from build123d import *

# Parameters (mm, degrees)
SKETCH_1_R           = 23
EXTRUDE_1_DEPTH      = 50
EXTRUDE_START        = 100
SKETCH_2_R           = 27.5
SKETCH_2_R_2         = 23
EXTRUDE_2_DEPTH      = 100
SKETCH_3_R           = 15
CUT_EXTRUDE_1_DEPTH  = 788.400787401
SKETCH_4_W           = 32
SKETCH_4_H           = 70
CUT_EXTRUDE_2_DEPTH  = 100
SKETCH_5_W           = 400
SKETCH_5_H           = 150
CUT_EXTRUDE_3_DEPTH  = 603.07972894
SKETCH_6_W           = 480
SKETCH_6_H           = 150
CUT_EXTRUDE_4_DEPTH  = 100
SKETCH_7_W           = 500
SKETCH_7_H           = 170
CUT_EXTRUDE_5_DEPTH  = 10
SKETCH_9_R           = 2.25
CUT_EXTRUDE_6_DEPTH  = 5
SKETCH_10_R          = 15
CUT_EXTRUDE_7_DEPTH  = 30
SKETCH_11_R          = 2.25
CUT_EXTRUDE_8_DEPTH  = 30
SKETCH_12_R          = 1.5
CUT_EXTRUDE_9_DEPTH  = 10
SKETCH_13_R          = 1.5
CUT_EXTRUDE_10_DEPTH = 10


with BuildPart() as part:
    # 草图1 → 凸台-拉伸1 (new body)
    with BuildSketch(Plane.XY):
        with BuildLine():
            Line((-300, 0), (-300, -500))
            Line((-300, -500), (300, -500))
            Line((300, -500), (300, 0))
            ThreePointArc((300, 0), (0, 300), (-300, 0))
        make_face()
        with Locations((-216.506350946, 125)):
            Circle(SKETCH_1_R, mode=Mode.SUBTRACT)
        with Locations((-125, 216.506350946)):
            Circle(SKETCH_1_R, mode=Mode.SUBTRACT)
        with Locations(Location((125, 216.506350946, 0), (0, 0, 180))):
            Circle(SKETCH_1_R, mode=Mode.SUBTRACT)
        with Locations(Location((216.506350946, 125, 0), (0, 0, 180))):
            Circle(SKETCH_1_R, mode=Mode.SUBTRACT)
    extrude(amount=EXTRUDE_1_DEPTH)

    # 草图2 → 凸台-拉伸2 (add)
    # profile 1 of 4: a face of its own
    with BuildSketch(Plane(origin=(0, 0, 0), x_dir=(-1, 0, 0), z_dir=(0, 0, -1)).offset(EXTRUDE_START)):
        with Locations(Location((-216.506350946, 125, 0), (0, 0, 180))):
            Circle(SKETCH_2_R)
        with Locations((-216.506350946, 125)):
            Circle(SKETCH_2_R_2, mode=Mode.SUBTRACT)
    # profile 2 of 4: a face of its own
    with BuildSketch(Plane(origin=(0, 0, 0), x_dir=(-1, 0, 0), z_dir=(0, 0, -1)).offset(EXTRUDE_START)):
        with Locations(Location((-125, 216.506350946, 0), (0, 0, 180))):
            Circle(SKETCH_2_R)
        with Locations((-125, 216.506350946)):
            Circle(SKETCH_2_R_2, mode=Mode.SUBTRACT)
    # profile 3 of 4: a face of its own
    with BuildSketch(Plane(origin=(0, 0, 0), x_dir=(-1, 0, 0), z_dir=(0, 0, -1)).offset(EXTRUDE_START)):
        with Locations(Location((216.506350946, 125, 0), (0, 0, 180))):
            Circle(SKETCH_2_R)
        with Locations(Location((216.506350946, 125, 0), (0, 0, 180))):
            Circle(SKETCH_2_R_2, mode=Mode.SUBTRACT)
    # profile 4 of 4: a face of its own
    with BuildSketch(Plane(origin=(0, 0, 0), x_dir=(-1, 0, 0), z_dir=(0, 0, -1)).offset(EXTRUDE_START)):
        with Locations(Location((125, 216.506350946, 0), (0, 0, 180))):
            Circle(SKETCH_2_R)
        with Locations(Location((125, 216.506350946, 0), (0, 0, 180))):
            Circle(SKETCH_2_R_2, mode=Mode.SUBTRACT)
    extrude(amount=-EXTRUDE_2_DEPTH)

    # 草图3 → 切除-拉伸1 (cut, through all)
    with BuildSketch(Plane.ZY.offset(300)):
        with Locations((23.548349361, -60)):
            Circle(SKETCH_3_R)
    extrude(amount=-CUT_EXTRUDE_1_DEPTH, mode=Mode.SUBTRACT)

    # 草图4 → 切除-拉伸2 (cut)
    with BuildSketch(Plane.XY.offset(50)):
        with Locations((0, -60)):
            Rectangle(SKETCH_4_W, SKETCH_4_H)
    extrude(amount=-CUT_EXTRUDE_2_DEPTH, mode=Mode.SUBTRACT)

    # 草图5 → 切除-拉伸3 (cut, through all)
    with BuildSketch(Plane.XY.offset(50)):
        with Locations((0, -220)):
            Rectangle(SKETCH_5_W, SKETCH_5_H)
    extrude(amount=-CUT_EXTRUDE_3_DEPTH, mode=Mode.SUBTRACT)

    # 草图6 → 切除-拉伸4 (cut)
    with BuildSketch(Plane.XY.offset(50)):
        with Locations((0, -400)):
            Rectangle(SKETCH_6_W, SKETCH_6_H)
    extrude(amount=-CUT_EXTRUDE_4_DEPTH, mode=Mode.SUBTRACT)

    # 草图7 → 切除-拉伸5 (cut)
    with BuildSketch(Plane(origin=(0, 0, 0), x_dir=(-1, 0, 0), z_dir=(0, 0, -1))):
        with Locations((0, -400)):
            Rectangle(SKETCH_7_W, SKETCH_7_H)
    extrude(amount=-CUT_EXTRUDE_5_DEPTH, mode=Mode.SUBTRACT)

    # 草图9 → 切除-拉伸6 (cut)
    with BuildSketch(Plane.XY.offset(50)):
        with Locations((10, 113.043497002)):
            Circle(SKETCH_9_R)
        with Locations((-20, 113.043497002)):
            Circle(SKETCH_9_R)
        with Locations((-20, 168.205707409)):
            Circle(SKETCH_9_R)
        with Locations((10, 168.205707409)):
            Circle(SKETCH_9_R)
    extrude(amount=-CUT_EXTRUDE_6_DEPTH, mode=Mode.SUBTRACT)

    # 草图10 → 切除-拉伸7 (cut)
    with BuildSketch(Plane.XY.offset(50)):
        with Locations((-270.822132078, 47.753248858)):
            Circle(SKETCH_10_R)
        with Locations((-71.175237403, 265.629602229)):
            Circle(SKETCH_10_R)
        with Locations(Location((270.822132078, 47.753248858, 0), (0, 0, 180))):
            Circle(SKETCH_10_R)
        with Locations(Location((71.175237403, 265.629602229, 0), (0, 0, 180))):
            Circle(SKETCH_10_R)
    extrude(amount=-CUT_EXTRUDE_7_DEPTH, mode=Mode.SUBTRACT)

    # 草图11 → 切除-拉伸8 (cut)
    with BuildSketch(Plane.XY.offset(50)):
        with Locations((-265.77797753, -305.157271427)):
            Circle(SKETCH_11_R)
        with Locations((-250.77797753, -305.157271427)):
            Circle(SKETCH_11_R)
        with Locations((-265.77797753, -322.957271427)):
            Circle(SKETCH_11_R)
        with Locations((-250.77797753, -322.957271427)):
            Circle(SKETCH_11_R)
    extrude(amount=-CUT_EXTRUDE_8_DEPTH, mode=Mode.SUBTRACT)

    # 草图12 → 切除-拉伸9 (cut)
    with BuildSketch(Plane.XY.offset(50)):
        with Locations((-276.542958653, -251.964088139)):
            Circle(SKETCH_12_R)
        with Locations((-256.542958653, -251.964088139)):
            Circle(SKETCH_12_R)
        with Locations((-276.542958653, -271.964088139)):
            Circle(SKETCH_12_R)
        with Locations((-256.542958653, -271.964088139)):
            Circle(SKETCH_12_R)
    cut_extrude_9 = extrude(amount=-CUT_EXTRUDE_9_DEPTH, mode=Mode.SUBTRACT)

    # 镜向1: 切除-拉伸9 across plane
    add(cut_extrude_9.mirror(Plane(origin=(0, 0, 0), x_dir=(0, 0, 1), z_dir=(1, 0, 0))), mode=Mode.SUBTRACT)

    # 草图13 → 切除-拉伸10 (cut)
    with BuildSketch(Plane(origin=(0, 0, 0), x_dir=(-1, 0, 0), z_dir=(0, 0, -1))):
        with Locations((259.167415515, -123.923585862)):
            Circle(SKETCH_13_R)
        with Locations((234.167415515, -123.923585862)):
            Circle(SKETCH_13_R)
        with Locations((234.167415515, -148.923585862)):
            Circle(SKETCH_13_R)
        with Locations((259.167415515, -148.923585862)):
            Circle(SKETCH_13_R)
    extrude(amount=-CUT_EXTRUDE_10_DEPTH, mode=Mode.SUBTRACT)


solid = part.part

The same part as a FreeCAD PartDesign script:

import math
import FreeCAD as App
import Part
import Sketcher
from FreeCAD import Vector
Q = App.Units.Quantity


def add_polygon(sketch, points):
    """Adds a closed chain of lines whose ends are joined by coincident constraints."""
    first, n = sketch.GeometryCount, len(points)
    for a, b in zip(points, points[1:] + points[:1]):
        sketch.addGeometry(Part.LineSegment(App.Vector(*a, 0), App.Vector(*b, 0)), False)
    for i in range(n):
        sketch.addConstraint(Sketcher.Constraint("Coincident", first + i, 2, first + (i + 1) % n, 1))

doc = App.newDocument("Part")
params = doc.addObject("Spreadsheet::Sheet", "Params")
for row, (alias, value) in enumerate([
    ("sketch1_diameter", "46 mm"),
    ("sketch1_radius", "300 mm"),
    ("sketch1_height", "500 mm"),
    ("pad1_length", "50 mm"),
    ("sketch2_diameter", "55 mm"),
    ("sketch2_diameter2", "46 mm"),
    ("pad2_length", "100 mm"),
    ("sketch3_diameter", "30 mm"),
    ("sketch4_width", "32 mm"),
    ("sketch4_height", "70 mm"),
    ("pocket2_length", "100 mm"),
    ("sketch5_width", "400 mm"),
    ("sketch5_height", "150 mm"),
    ("sketch6_width", "480 mm"),
    ("sketch6_height", "150 mm"),
    ("pocket4_length", "100 mm"),
    ("sketch7_width", "500 mm"),
    ("sketch7_height", "170 mm"),
    ("pocket5_length", "10 mm"),
    ("sketch8_diameter", "4.5 mm"),
    ("pocket6_length", "5 mm"),
    ("sketch9_diameter", "30 mm"),
    ("pocket7_length", "30 mm"),
    ("sketch10_diameter", "4.5 mm"),
    ("pocket8_length", "30 mm"),
    ("sketch11_diameter", "3 mm"),
    ("pocket9_length", "10 mm"),
    ("sketch12_diameter", "3 mm"),
    ("pocket10_length", "10 mm"),
], start=1):
    params.set(f"A{row}", alias)
    params.set(f"B{row}", "=" + value)
    params.setAlias(f"B{row}", alias)

body = doc.addObject("PartDesign::Body", "Body")

sketch1 = doc.addObject("Sketcher::SketchObject", "Sketch")
body.addObject(sketch1)
sketch1.AttachmentSupport = (doc.XY_Plane, [""])
sketch1.MapMode = "FlatFace"
sketch1.addGeometry([
    Part.LineSegment(Vector(-300, 0, 0), Vector(-300, -500, 0)),
    Part.LineSegment(Vector(-300, -500, 0), Vector(300, -500, 0)),
    Part.LineSegment(Vector(300, -500, 0), Vector(300, 0, 0)),
    Part.ArcOfCircle(Part.Circle(Vector(0, 0, 0), Vector(0, 0, 1), 300), math.radians(0), math.radians(180)),
    Part.Circle(Vector(-216.506351, 125, 0), Vector(0, 0, 1), 23),
    Part.Circle(Vector(216.506351, 125, 0), Vector(0, 0, 1), 23),
    Part.Circle(Vector(-125, 216.506351, 0), Vector(0, 0, 1), 23),
    Part.Circle(Vector(125, 216.506351, 0), Vector(0, 0, 1), 23),
], False)
sketch1.addConstraint([
    Sketcher.Constraint("Coincident", 0, 2, 1, 1),
    Sketcher.Constraint("Coincident", 1, 2, 2, 1),
    Sketcher.Constraint("Tangent", 2, 2, 3, 1),
    Sketcher.Constraint("Tangent", 3, 2, 0, 1),
    Sketcher.Constraint("Vertical", 0),
    Sketcher.Constraint("Horizontal", 1),
    Sketcher.Constraint("Vertical", 2),
    Sketcher.Constraint("Coincident", 3, 3, -1, 1),
    Sketcher.Constraint("Equal", 4, 5),
    Sketcher.Constraint("Equal", 5, 6),
    Sketcher.Constraint("Equal", 6, 7),
    Sketcher.Constraint("Symmetric", 4, 3, 5, 3, -2),
    Sketcher.Constraint("Symmetric", 6, 3, 7, 3, -2),
    Sketcher.Constraint("Diameter", 4, Q("46 mm")),
    Sketcher.Constraint("Radius", 3, Q("300 mm")),
    Sketcher.Constraint("DistanceY", 0, 2, 0, 1, Q("500 mm")),
    Sketcher.Constraint("DistanceY", -1, 1, 4, 3, Q("125 mm")),
    Sketcher.Constraint("DistanceX", 6, 3, -1, 1, Q("125 mm")),
    Sketcher.Constraint("DistanceX", 4, 3, 5, 3, Q("433.012702 mm")),
    Sketcher.Constraint("DistanceY", -1, 1, 6, 3, Q("216.506351 mm")),
])
sketch1.setExpression("Constraints[13]", "Params.sketch1_diameter")
sketch1.setExpression("Constraints[14]", "Params.sketch1_radius")
sketch1.setExpression("Constraints[15]", "Params.sketch1_height")
pad1 = doc.addObject("PartDesign::Pad", "Pad")
body.addObject(pad1)
pad1.Profile = sketch1
pad1.setExpression("Length", "Params.pad1_length")

sketch2 = doc.addObject("Sketcher::SketchObject", "Sketch001")
body.addObject(sketch2)
sketch2.AttachmentSupport = (doc.XY_Plane, [""])
sketch2.MapMode = "FlatFace"
sketch2.AttachmentOffset = App.Placement(Vector(0, 0, -100), App.Rotation())
sketch2.addGeometry([
    Part.Circle(Vector(216.506351, 125, 0), Vector(0, 0, 1), 27.5),
    Part.Circle(Vector(216.506351, 125, 0), Vector(0, 0, 1), 23),
    Part.Circle(Vector(125, 216.506351, 0), Vector(0, 0, 1), 27.5),
    Part.Circle(Vector(125, 216.506351, 0), Vector(0, 0, 1), 23),
    Part.Circle(Vector(-216.506351, 125, 0), Vector(0, 0, 1), 27.5),
    Part.Circle(Vector(-216.506351, 125, 0), Vector(0, 0, 1), 23),
    Part.Circle(Vector(-125, 216.506351, 0), Vector(0, 0, 1), 27.5),
    Part.Circle(Vector(-125, 216.506351, 0), Vector(0, 0, 1), 23),
], False)
sketch2.addConstraint([
    Sketcher.Constraint("Coincident", 1, 3, 0, 3),
    Sketcher.Constraint("Coincident", 3, 3, 2, 3),
    Sketcher.Constraint("Coincident", 5, 3, 4, 3),
    Sketcher.Constraint("Coincident", 7, 3, 6, 3),
    Sketcher.Constraint("Equal", 0, 2),
    Sketcher.Constraint("Equal", 1, 3),
    Sketcher.Constraint("Equal", 2, 4),
    Sketcher.Constraint("Equal", 3, 5),
    Sketcher.Constraint("Equal", 4, 6),
    Sketcher.Constraint("Equal", 5, 7),
    Sketcher.Constraint("Symmetric", 0, 3, 4, 3, -2),
    Sketcher.Constraint("Symmetric", 2, 3, 6, 3, -2),
    Sketcher.Constraint("Diameter", 0, Q("55 mm")),
    Sketcher.Constraint("Diameter", 1, Q("46 mm")),
    Sketcher.Constraint("DistanceY", -1, 1, 0, 3, Q("125 mm")),
    Sketcher.Constraint("DistanceX", -1, 1, 2, 3, Q("125 mm")),
    Sketcher.Constraint("DistanceX", 4, 3, 0, 3, Q("433.012702 mm")),
    Sketcher.Constraint("DistanceY", -1, 1, 2, 3, Q("216.506351 mm")),
])
sketch2.setExpression("Constraints[12]", "Params.sketch2_diameter")
sketch2.setExpression("Constraints[13]", "Params.sketch2_diameter2")
pad2 = doc.addObject("PartDesign::Pad", "Pad001")
body.addObject(pad2)
pad2.Profile = sketch2
pad2.setExpression("Length", "Params.pad2_length")

sketch3 = doc.addObject("Sketcher::SketchObject", "Sketch002")
body.addObject(sketch3)
sketch3.AttachmentSupport = (doc.YZ_Plane, [""])
sketch3.MapMode = "FlatFace"
sketch3.AttachmentOffset = App.Placement(Vector(0, 0, -300), App.Rotation())
sketch3.addGeometry(Part.Circle(Vector(-60, 23.548349, 0), Vector(0, 0, 1), 15), False)
sketch3.addConstraint([
    Sketcher.Constraint("Diameter", 0, Q("30 mm")),
    Sketcher.Constraint("DistanceX", 0, 3, -1, 1, Q("60 mm")),
    Sketcher.Constraint("DistanceY", -1, 1, 0, 3, Q("23.548349 mm")),
])
sketch3.setExpression("Constraints[0]", "Params.sketch3_diameter")
pocket1 = doc.addObject("PartDesign::Pocket", "Pocket")
body.addObject(pocket1)
pocket1.Profile = sketch3
pocket1.Type = "ThroughAll"
pocket1.Reversed = True

sketch4 = doc.addObject("Sketcher::SketchObject", "Sketch003")
body.addObject(sketch4)
sketch4.AttachmentSupport = (doc.XY_Plane, [""])
sketch4.MapMode = "FlatFace"
sketch4.AttachmentOffset = App.Placement(Vector(0, 0, 50), App.Rotation())
add_polygon(sketch4, [(-16, -25), (-16, -95), (16, -95), (16, -25)])
sketch4.addConstraint([
    Sketcher.Constraint("Vertical", 0),
    Sketcher.Constraint("Horizontal", 1),
    Sketcher.Constraint("Vertical", 2),
    Sketcher.Constraint("Horizontal", 3),
    Sketcher.Constraint("DistanceX", 1, 1, 1, 2, Q("32 mm")),
    Sketcher.Constraint("DistanceY", 0, 2, 0, 1, Q("70 mm")),
    Sketcher.Constraint("DistanceX", 0, 2, -1, 1, Q("16 mm")),
    Sketcher.Constraint("DistanceY", 0, 2, -1, 1, Q("95 mm")),
])
sketch4.setExpression("Constraints[8]", "Params.sketch4_width")
sketch4.setExpression("Constraints[9]", "Params.sketch4_height")
pocket2 = doc.addObject("PartDesign::Pocket", "Pocket001")
body.addObject(pocket2)
pocket2.Profile = sketch4
pocket2.setExpression("Length", "Params.pocket2_length")

sketch5 = doc.addObject("Sketcher::SketchObject", "Sketch004")
body.addObject(sketch5)
sketch5.AttachmentSupport = (doc.XY_Plane, [""])
sketch5.MapMode = "FlatFace"
sketch5.AttachmentOffset = App.Placement(Vector(0, 0, 50), App.Rotation())
add_polygon(sketch5, [(-200, -145), (-200, -295), (200, -295), (200, -145)])
sketch5.addConstraint([
    Sketcher.Constraint("Vertical", 0),
    Sketcher.Constraint("Horizontal", 1),
    Sketcher.Constraint("Vertical", 2),
    Sketcher.Constraint("Horizontal", 3),
    Sketcher.Constraint("DistanceX", 1, 1, 1, 2, Q("400 mm")),
    Sketcher.Constraint("DistanceY", 0, 2, 0, 1, Q("150 mm")),
    Sketcher.Constraint("DistanceX", 0, 2, -1, 1, Q("200 mm")),
    Sketcher.Constraint("DistanceY", 0, 2, -1, 1, Q("295 mm")),
])
sketch5.setExpression("Constraints[8]", "Params.sketch5_width")
sketch5.setExpression("Constraints[9]", "Params.sketch5_height")
pocket3 = doc.addObject("PartDesign::Pocket", "Pocket002")
body.addObject(pocket3)
pocket3.Profile = sketch5
pocket3.Type = "ThroughAll"

sketch6 = doc.addObject("Sketcher::SketchObject", "Sketch005")
body.addObject(sketch6)
sketch6.AttachmentSupport = (doc.XY_Plane, [""])
sketch6.MapMode = "FlatFace"
sketch6.AttachmentOffset = App.Placement(Vector(0, 0, 50), App.Rotation())
add_polygon(sketch6, [(-240, -325), (-240, -475), (240, -475), (240, -325)])
sketch6.addConstraint([
    Sketcher.Constraint("Vertical", 0),
    Sketcher.Constraint("Horizontal", 1),
    Sketcher.Constraint("Vertical", 2),
    Sketcher.Constraint("Horizontal", 3),
    Sketcher.Constraint("DistanceX", 1, 1, 1, 2, Q("480 mm")),
    Sketcher.Constraint("DistanceY", 0, 2, 0, 1, Q("150 mm")),
    Sketcher.Constraint("DistanceX", 0, 2, -1, 1, Q("240 mm")),
    Sketcher.Constraint("DistanceY", 0, 2, -1, 1, Q("475 mm")),
])
sketch6.setExpression("Constraints[8]", "Params.sketch6_width")
sketch6.setExpression("Constraints[9]", "Params.sketch6_height")
pocket4 = doc.addObject("PartDesign::Pocket", "Pocket003")
body.addObject(pocket4)
pocket4.Profile = sketch6
pocket4.setExpression("Length", "Params.pocket4_length")

sketch7 = doc.addObject("Sketcher::SketchObject", "Sketch006")
body.addObject(sketch7)
sketch7.AttachmentSupport = (doc.XY_Plane, [""])
sketch7.MapMode = "FlatFace"
add_polygon(sketch7, [(250, -315), (250, -485), (-250, -485), (-250, -315)])
sketch7.addConstraint([
    Sketcher.Constraint("Vertical", 0),
    Sketcher.Constraint("Horizontal", 1),
    Sketcher.Constraint("Vertical", 2),
    Sketcher.Constraint("Horizontal", 3),
    Sketcher.Constraint("DistanceX", 1, 2, 1, 1, Q("500 mm")),
    Sketcher.Constraint("DistanceY", 0, 2, 0, 1, Q("170 mm")),
    Sketcher.Constraint("DistanceX", -1, 1, 0, 2, Q("250 mm")),
    Sketcher.Constraint("DistanceY", 0, 2, -1, 1, Q("485 mm")),
])
sketch7.setExpression("Constraints[8]", "Params.sketch7_width")
sketch7.setExpression("Constraints[9]", "Params.sketch7_height")
pocket5 = doc.addObject("PartDesign::Pocket", "Pocket004")
body.addObject(pocket5)
pocket5.Profile = sketch7
pocket5.setExpression("Length", "Params.pocket5_length")
pocket5.Reversed = True

sketch8 = doc.addObject("Sketcher::SketchObject", "Sketch007")
body.addObject(sketch8)
sketch8.AttachmentSupport = (doc.XY_Plane, [""])
sketch8.MapMode = "FlatFace"
sketch8.AttachmentOffset = App.Placement(Vector(0, 0, 50), App.Rotation())
sketch8.addGeometry([
    Part.Circle(Vector(10, 113.043497, 0), Vector(0, 0, 1), 2.25),
    Part.Circle(Vector(-20, 113.043497, 0), Vector(0, 0, 1), 2.25),
    Part.Circle(Vector(-20, 168.205707, 0), Vector(0, 0, 1), 2.25),
    Part.Circle(Vector(10, 168.205707, 0), Vector(0, 0, 1), 2.25),
], False)
sketch8.addConstraint([
    Sketcher.Constraint("Equal", 0, 1),
    Sketcher.Constraint("Equal", 1, 2),
    Sketcher.Constraint("Equal", 2, 3),
    Sketcher.Constraint("Horizontal", 0, 3, 1, 3),
    Sketcher.Constraint("Horizontal", 2, 3, 3, 3),
    Sketcher.Constraint("Vertical", 1, 3, 2, 3),
    Sketcher.Constraint("Vertical", 0, 3, 3, 3),
    Sketcher.Constraint("Diameter", 0, Q("4.5 mm")),
    Sketcher.Constraint("DistanceX", -1, 1, 0, 3, Q("10 mm")),
    Sketcher.Constraint("DistanceX", 1, 3, -1, 1, Q("20 mm")),
    Sketcher.Constraint("DistanceY", 1, 3, 2, 3, Q("55.16221 mm")),
    Sketcher.Constraint("DistanceY", -1, 1, 0, 3, Q("113.043497 mm")),
])
sketch8.setExpression("Constraints[7]", "Params.sketch8_diameter")
pocket6 = doc.addObject("PartDesign::Pocket", "Pocket005")
body.addObject(pocket6)
pocket6.Profile = sketch8
pocket6.setExpression("Length", "Params.pocket6_length")

sketch9 = doc.addObject("Sketcher::SketchObject", "Sketch008")
body.addObject(sketch9)
sketch9.AttachmentSupport = (doc.XY_Plane, [""])
sketch9.MapMode = "FlatFace"
sketch9.AttachmentOffset = App.Placement(Vector(0, 0, 50), App.Rotation())
sketch9.addGeometry([
    Part.Circle(Vector(-270.822132, 47.753249, 0), Vector(0, 0, 1), 15),
    Part.Circle(Vector(-71.175237, 265.629602, 0), Vector(0, 0, 1), 15),
    Part.Circle(Vector(270.822132, 47.753249, 0), Vector(0, 0, 1), 15),
    Part.Circle(Vector(71.175237, 265.629602, 0), Vector(0, 0, 1), 15),
], False)
sketch9.addConstraint([
    Sketcher.Constraint("Equal", 0, 1),
    Sketcher.Constraint("Equal", 1, 2),
    Sketcher.Constraint("Equal", 2, 3),
    Sketcher.Constraint("Symmetric", 0, 3, 2, 3, -2),
    Sketcher.Constraint("Symmetric", 1, 3, 3, 3, -2),
    Sketcher.Constraint("Diameter", 0, Q("30 mm")),
    Sketcher.Constraint("DistanceY", -1, 1, 0, 3, Q("47.753249 mm")),
    Sketcher.Constraint("DistanceX", 1, 3, 2, 3, Q("341.997369 mm")),
    Sketcher.Constraint("DistanceX", 0, 3, -1, 1, Q("270.822132 mm")),
    Sketcher.Constraint("DistanceY", -1, 1, 1, 3, Q("265.629602 mm")),
])
sketch9.setExpression("Constraints[5]", "Params.sketch9_diameter")
pocket7 = doc.addObject("PartDesign::Pocket", "Pocket006")
body.addObject(pocket7)
pocket7.Profile = sketch9
pocket7.setExpression("Length", "Params.pocket7_length")

sketch10 = doc.addObject("Sketcher::SketchObject", "Sketch009")
body.addObject(sketch10)
sketch10.AttachmentSupport = (doc.XY_Plane, [""])
sketch10.MapMode = "FlatFace"
sketch10.AttachmentOffset = App.Placement(Vector(0, 0, 50), App.Rotation())
sketch10.addGeometry([
    Part.Circle(Vector(-265.777978, -305.157271, 0), Vector(0, 0, 1), 2.25),
    Part.Circle(Vector(-250.777978, -305.157271, 0), Vector(0, 0, 1), 2.25),
    Part.Circle(Vector(-265.777978, -322.957271, 0), Vector(0, 0, 1), 2.25),
    Part.Circle(Vector(-250.777978, -322.957271, 0), Vector(0, 0, 1), 2.25),
], False)
sketch10.addConstraint([
    Sketcher.Constraint("Equal", 0, 1),
    Sketcher.Constraint("Equal", 1, 2),
    Sketcher.Constraint("Equal", 2, 3),
    Sketcher.Constraint("Horizontal", 0, 3, 1, 3),
    Sketcher.Constraint("Horizontal", 2, 3, 3, 3),
    Sketcher.Constraint("Vertical", 0, 3, 2, 3),
    Sketcher.Constraint("Vertical", 1, 3, 3, 3),
    Sketcher.Constraint("Diameter", 0, Q("4.5 mm")),
    Sketcher.Constraint("DistanceX", 0, 3, 1, 3, Q("15 mm")),
    Sketcher.Constraint("DistanceY", 2, 3, 0, 3, Q("17.8 mm")),
    Sketcher.Constraint("DistanceY", 0, 3, -1, 1, Q("305.157271 mm")),
    Sketcher.Constraint("DistanceX", 0, 3, -1, 1, Q("265.777978 mm")),
])
sketch10.setExpression("Constraints[7]", "Params.sketch10_diameter")
pocket8 = doc.addObject("PartDesign::Pocket", "Pocket007")
body.addObject(pocket8)
pocket8.Profile = sketch10
pocket8.setExpression("Length", "Params.pocket8_length")

sketch11 = doc.addObject("Sketcher::SketchObject", "Sketch010")
body.addObject(sketch11)
sketch11.AttachmentSupport = (doc.XY_Plane, [""])
sketch11.MapMode = "FlatFace"
sketch11.AttachmentOffset = App.Placement(Vector(0, 0, 50), App.Rotation())
sketch11.addGeometry([
    Part.Circle(Vector(-276.542959, -251.964088, 0), Vector(0, 0, 1), 1.5),
    Part.Circle(Vector(-256.542959, -251.964088, 0), Vector(0, 0, 1), 1.5),
    Part.Circle(Vector(-276.542959, -271.964088, 0), Vector(0, 0, 1), 1.5),
    Part.Circle(Vector(-256.542959, -271.964088, 0), Vector(0, 0, 1), 1.5),
], False)
sketch11.addConstraint([
    Sketcher.Constraint("Equal", 0, 1),
    Sketcher.Constraint("Equal", 1, 2),
    Sketcher.Constraint("Equal", 2, 3),
    Sketcher.Constraint("Horizontal", 0, 3, 1, 3),
    Sketcher.Constraint("Horizontal", 2, 3, 3, 3),
    Sketcher.Constraint("Vertical", 0, 3, 2, 3),
    Sketcher.Constraint("Vertical", 1, 3, 3, 3),
    Sketcher.Constraint("Diameter", 0, Q("3 mm")),
    Sketcher.Constraint("DistanceX", 0, 3, 1, 3, Q("20 mm")),
    Sketcher.Constraint("DistanceY", 2, 3, 0, 3, Q("20 mm")),
    Sketcher.Constraint("DistanceX", 0, 3, -1, 1, Q("276.542959 mm")),
    Sketcher.Constraint("DistanceY", 0, 3, -1, 1, Q("251.964088 mm")),
])
sketch11.setExpression("Constraints[7]", "Params.sketch11_diameter")
pocket9 = doc.addObject("PartDesign::Pocket", "Pocket008")
body.addObject(pocket9)
pocket9.Profile = sketch11
pocket9.setExpression("Length", "Params.pocket9_length")
doc.recompute()

mirrored = doc.addObject("PartDesign::Mirrored", "Mirrored")
body.addObject(mirrored)
mirrored.Originals = [pocket9]
mirrored.MirrorPlane = (doc.YZ_Plane, [""])
body.Tip = mirrored

sketch12 = doc.addObject("Sketcher::SketchObject", "Sketch011")
body.addObject(sketch12)
sketch12.AttachmentSupport = (doc.XY_Plane, [""])
sketch12.MapMode = "FlatFace"
sketch12.addGeometry([
    Part.Circle(Vector(-259.167416, -123.923586, 0), Vector(0, 0, 1), 1.5),
    Part.Circle(Vector(-234.167416, -123.923586, 0), Vector(0, 0, 1), 1.5),
    Part.Circle(Vector(-234.167416, -148.923586, 0), Vector(0, 0, 1), 1.5),
    Part.Circle(Vector(-259.167416, -148.923586, 0), Vector(0, 0, 1), 1.5),
], False)
sketch12.addConstraint([
    Sketcher.Constraint("Equal", 0, 1),
    Sketcher.Constraint("Equal", 1, 2),
    Sketcher.Constraint("Equal", 2, 3),
    Sketcher.Constraint("Horizontal", 0, 3, 1, 3),
    Sketcher.Constraint("Horizontal", 2, 3, 3, 3),
    Sketcher.Constraint("Vertical", 1, 3, 2, 3),
    Sketcher.Constraint("Vertical", 0, 3, 3, 3),
    Sketcher.Constraint("Diameter", 0, Q("3 mm")),
    Sketcher.Constraint("DistanceX", 0, 3, 1, 3, Q("25 mm")),
    Sketcher.Constraint("DistanceY", 2, 3, 1, 3, Q("25 mm")),
    Sketcher.Constraint("DistanceX", 0, 3, -1, 1, Q("259.167416 mm")),
    Sketcher.Constraint("DistanceY", 0, 3, -1, 1, Q("123.923586 mm")),
])
sketch12.setExpression("Constraints[7]", "Params.sketch12_diameter")
pocket10 = doc.addObject("PartDesign::Pocket", "Pocket009")
body.addObject(pocket10)
pocket10.Profile = sketch12
pocket10.setExpression("Length", "Params.pocket10_length")
pocket10.Reversed = True

doc.recompute()
